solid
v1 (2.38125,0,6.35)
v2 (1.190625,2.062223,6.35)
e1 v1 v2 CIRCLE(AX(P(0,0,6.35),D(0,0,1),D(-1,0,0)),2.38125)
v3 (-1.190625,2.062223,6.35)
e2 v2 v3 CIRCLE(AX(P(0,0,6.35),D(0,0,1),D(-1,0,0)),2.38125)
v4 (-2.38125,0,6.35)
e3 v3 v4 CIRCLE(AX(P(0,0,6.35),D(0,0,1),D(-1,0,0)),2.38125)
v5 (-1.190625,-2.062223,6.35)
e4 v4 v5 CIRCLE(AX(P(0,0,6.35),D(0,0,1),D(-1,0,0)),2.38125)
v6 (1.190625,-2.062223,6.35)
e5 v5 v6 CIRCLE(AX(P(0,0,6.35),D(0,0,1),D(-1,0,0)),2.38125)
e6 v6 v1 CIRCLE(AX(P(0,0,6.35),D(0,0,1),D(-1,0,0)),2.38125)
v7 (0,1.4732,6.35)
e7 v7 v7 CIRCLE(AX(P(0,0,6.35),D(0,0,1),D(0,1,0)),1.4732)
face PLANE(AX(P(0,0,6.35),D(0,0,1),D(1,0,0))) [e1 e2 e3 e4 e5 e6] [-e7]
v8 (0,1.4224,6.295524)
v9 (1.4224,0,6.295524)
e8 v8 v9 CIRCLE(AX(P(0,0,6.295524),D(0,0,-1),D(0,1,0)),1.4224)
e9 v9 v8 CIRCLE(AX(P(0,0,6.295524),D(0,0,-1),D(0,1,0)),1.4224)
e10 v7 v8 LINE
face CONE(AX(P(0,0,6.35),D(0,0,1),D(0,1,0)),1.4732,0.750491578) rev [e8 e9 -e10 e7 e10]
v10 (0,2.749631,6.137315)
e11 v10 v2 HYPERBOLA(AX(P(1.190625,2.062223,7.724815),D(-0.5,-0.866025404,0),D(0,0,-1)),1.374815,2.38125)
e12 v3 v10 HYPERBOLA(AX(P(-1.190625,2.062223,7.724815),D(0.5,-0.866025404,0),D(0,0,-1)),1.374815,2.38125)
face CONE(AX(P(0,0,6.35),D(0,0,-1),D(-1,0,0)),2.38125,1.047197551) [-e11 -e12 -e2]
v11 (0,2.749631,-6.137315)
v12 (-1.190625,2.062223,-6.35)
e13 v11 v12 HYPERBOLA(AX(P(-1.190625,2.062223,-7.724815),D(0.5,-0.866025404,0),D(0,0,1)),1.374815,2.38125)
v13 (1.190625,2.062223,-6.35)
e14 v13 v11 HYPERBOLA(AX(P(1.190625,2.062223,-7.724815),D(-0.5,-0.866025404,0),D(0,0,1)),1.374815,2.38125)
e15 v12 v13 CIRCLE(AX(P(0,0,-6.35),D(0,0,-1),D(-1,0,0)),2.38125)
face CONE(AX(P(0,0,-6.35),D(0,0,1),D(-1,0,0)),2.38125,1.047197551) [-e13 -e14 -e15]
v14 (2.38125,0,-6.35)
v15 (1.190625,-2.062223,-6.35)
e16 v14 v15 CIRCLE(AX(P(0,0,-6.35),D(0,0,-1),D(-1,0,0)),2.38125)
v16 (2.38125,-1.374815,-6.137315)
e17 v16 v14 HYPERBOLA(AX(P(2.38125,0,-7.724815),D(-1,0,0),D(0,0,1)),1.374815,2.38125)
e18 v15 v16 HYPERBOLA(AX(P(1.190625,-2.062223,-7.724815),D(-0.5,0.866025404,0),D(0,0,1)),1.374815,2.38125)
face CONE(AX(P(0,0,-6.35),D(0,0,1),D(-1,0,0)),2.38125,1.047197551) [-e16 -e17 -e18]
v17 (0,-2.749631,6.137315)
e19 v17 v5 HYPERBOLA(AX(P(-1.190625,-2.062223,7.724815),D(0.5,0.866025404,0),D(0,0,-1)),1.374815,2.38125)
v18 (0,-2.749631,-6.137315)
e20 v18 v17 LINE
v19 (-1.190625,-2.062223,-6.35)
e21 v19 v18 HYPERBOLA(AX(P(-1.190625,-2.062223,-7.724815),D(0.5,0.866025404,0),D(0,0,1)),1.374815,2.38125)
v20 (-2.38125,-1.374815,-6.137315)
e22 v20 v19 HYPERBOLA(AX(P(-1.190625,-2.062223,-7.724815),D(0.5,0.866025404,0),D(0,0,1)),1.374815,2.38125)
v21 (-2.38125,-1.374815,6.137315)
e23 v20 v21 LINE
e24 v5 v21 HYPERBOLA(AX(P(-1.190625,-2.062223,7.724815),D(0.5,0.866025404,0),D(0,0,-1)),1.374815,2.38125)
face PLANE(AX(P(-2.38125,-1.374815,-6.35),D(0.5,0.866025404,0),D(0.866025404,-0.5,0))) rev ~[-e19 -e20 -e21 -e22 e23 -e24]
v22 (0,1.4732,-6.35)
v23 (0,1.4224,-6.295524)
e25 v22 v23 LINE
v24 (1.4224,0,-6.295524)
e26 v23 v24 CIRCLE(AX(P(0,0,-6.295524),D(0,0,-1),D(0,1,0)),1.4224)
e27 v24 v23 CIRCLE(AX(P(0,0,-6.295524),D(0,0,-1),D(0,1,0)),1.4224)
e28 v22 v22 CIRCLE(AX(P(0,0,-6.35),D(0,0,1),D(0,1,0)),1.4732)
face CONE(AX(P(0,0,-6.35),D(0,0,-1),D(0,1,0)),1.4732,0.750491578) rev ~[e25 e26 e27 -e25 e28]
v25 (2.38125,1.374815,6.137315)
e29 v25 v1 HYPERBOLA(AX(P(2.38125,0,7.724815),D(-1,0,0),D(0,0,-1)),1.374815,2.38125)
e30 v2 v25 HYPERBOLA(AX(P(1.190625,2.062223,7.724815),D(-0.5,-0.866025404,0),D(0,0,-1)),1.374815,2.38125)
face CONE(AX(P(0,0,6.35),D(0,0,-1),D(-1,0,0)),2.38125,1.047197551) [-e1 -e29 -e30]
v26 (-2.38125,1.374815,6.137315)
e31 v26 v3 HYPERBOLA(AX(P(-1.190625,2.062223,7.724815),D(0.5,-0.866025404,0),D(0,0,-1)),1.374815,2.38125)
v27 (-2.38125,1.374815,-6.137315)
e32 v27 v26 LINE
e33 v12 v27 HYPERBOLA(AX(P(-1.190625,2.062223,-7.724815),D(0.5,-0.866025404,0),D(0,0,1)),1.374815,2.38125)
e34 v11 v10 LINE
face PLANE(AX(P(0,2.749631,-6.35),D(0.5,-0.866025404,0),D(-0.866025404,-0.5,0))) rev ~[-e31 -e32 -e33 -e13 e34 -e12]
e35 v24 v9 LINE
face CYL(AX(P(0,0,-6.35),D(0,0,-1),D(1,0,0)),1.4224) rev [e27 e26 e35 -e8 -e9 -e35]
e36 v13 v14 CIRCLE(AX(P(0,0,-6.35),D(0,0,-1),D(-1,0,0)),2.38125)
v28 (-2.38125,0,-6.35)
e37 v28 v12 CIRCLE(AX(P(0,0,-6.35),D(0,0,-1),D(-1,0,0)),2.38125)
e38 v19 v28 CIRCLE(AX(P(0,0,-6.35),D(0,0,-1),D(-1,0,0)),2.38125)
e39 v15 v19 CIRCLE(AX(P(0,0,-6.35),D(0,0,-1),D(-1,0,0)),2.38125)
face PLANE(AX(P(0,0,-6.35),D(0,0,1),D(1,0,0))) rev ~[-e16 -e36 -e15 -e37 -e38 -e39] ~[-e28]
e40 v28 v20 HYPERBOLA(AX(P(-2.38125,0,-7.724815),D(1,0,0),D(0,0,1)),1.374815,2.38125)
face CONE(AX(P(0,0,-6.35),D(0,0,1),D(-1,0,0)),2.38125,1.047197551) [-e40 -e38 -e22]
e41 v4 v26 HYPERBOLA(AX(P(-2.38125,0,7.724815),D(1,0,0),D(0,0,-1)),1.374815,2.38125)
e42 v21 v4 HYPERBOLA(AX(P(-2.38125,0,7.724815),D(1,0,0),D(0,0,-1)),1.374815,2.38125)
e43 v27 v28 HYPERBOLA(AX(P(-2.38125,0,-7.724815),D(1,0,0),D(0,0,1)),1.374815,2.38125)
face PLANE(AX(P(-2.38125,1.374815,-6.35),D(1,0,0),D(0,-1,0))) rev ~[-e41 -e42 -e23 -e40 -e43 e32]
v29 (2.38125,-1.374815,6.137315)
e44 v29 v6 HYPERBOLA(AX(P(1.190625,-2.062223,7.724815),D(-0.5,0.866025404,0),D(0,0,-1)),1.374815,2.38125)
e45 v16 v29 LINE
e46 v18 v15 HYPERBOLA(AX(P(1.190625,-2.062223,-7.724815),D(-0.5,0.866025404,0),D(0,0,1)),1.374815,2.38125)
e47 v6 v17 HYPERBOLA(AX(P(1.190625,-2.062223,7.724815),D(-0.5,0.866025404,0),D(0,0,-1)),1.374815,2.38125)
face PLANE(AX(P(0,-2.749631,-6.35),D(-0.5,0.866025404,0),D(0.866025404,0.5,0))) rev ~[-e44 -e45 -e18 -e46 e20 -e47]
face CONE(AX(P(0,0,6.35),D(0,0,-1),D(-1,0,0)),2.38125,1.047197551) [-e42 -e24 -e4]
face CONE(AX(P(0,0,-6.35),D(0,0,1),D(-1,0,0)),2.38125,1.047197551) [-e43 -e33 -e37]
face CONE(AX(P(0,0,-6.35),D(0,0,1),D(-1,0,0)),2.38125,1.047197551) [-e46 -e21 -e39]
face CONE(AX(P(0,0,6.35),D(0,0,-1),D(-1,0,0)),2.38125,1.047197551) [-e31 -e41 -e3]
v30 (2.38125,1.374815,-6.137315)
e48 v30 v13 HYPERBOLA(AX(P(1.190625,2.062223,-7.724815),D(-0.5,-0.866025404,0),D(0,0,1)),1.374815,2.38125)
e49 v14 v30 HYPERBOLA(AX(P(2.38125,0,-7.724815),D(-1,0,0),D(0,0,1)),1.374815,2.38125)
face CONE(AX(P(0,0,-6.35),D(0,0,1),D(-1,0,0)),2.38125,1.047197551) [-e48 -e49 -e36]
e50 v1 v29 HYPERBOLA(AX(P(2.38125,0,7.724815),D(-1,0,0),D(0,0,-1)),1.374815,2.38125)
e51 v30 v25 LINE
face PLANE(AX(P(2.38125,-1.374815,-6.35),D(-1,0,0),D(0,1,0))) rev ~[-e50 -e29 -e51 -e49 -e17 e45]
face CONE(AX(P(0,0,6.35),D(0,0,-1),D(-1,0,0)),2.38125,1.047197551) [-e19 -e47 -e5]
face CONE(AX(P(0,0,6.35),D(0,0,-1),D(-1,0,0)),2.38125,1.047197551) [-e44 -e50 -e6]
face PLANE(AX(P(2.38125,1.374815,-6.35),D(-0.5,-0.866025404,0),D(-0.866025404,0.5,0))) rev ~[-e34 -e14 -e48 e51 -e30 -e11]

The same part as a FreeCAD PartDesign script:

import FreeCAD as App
import Part
import Sketcher

V = App.Vector
Q = App.Units.Quantity


def faces_at(feature, points):
    """Names of the faces that lie closest to the given points."""
    faces = feature.Shape.Faces
    near = lambda p: min(range(len(faces)), key=lambda i: faces[i].distToShape(Part.Vertex(*p))[0])
    return sorted({f"Face{near(p) + 1}" for p in points})

doc = App.newDocument("Part")
body = doc.addObject("PartDesign::Body", "Body")

sketch1 = body.newObject("Sketcher::SketchObject", "Sketch")
sketch1.AttachmentSupport = (doc.getObject("XY_Plane"), [""])
sketch1.MapMode = "FlatFace"
sketch1.addGeometry([
    Part.LineSegment(V(0, 2.7, 0), V(-2.4, 1.4, 0)),
    Part.LineSegment(V(-2.4, 1.4, 0), V(-2.4, -1.4, 0)),
    Part.LineSegment(V(-2.4, -1.4, 0), V(0, -2.7, 0)),
    Part.LineSegment(V(0, -2.7, 0), V(2.4, -1.4, 0)),
    Part.LineSegment(V(2.4, -1.4, 0), V(2.4, 1.4, 0)),
    Part.LineSegment(V(2.4, 1.4, 0), V(0, 2.7, 0)),
    Part.Circle(V(0, 0, 0), V(0, 0, 1), 1.4),
], False)
sketch1.addConstraint([
    Sketcher.Constraint("Coincident", 0, 2, 1, 1),
    Sketcher.Constraint("Coincident", 1, 2, 2, 1),
    Sketcher.Constraint("Coincident", 2, 2, 3, 1),
    Sketcher.Constraint("Coincident", 3, 2, 4, 1),
    Sketcher.Constraint("Coincident", 4, 2, 5, 1),
    Sketcher.Constraint("Coincident", 5, 2, 0, 1),
    Sketcher.Constraint("Vertical", 1),
    Sketcher.Constraint("Vertical", 4),
    Sketcher.Constraint("Coincident", 6, 3, -1, 1),
    Sketcher.Constraint("Symmetric", 0, 2, 3, 2, -1, 1),
    Sketcher.Constraint("Symmetric", 2, 2, 5, 2, -1, 1),
    Sketcher.Constraint("PointOnObject", 2, 2, -2),
    Sketcher.Constraint("Parallel", 2, 5),
    Sketcher.Constraint("Horizontal", 1, 2, 3, 2),
    Sketcher.Constraint("Diameter", 6, Q("0.112 in")),
    Sketcher.Constraint("Angle", 0, Q("-150 deg")),
    Sketcher.Constraint("DistanceX", 0, 2, -1, 1, Q("0.09375 in")),
    Sketcher.Constraint("DistanceY", 1, 2, 1, 1, Q("2.749631 mm")),
])
pad1 = body.newObject("PartDesign::Pad", "Pad")
pad1.Profile = sketch1
pad1.Type = "TwoLengths"
pad1.Length = Q("0.25 in")
pad1.Length2 = Q("0.25 in")

sketch2 = body.newObject("Sketcher::SketchObject", "Sketch001")
sketch2.AttachmentSupport = (doc.getObject("YZ_Plane"), [""])
sketch2.MapMode = "FlatFace"
sketch2.addGeometry([
    Part.LineSegment(V(0, -6.3, 0), V(1.5, -6.3, 0)),
    Part.LineSegment(V(1.5, -6.3, 0), V(0, -4.8, 0)),
    Part.LineSegment(V(0, -4.8, 0), V(0, -6.3, 0)),
], False)
sketch2.addConstraint([
    Sketcher.Constraint("Coincident", 0, 2, 1, 1),
    Sketcher.Constraint("Coincident", 1, 2, 2, 1),
    Sketcher.Constraint("Coincident", 2, 2, 0, 1),
    Sketcher.Constraint("Horizontal", 0),
    Sketcher.Constraint("Vertical", 2),
    Sketcher.Constraint("PointOnObject", 1, 2, -2),
    Sketcher.Constraint("Angle", 1, Q("133 deg")),
    Sketcher.Constraint("DistanceX", 0, 1, 0, 2, Q("0.058 in")),
    Sketcher.Constraint("DistanceY", 0, 2, -1, 1, Q("0.25 in")),
])
groove = body.newObject("PartDesign::Groove", "Groove")
groove.Profile = sketch2
groove.ReferenceAxis = (sketch2, ["V_Axis"])
groove.Angle = 360
body2 = doc.addObject("PartDesign::Body", "Body001")

sketch3 = body2.newObject("Sketcher::SketchObject", "Sketch002")
sketch3.AttachmentSupport = (doc.getObject("XY_Plane001"), [""])
sketch3.MapMode = "FlatFace"
sketch3.AttachmentOffset = App.Placement(V(0, 0, -0.25 * 25.4), App.Rotation())
sketch3.addGeometry([
    Part.LineSegment(V(29.5, 29.8, 0), V(29.5, -29.8, 0)),
    Part.LineSegment(V(29.5, -29.8, 0), V(-29.5, -29.8, 0)),
    Part.LineSegment(V(-29.5, -29.8, 0), V(-29.5, 29.8, 0)),
    Part.LineSegment(V(-29.5, 29.8, 0), V(29.5, 29.8, 0)),
    Part.Circle(V(0, 0, 0), V(0, 0, 1), 2.4),
], False)
sketch3.addConstraint([
    Sketcher.Constraint("Coincident", 0, 2, 1, 1),
    Sketcher.Constraint("Coincident", 1, 2, 2, 1),
    Sketcher.Constraint("Coincident", 2, 2, 3, 1),
    Sketcher.Constraint("Coincident", 3, 2, 0, 1),
    Sketcher.Constraint("Vertical", 0),
    Sketcher.Constraint("Horizontal", 1),
    Sketcher.Constraint("Vertical", 2),
    Sketcher.Constraint("Horizontal", 3),
    Sketcher.Constraint("Coincident", 4, 3, -1, 1),
    Sketcher.Constraint("Symmetric", 0, 2, 2, 2, -1, 1),
    Sketcher.Constraint("Diameter", 4, Q("0.1875 in")),
    Sketcher.Constraint("DistanceX", 1, 2, 1, 1, Q("58.916 mm")),
    Sketcher.Constraint("DistanceY", 0, 2, 0, 1, Q("59.654 mm")),
])
pad2 = body2.newObject("PartDesign::Pad", "Pad001")
pad2.Profile = sketch3
pad2.Length = 14.210633
doc.recompute()

datumplane = body2.newObject("PartDesign::Plane", "DatumPlane")
datumplane.AttachmentSupport = (doc.getObject("XY_Plane001"), [""])
datumplane.MapMode = "FlatFace"
datumplane.AttachmentOffset = App.Placement(V(0, 0, -0.25 * 25.4), App.Rotation())
draft = body2.newObject("PartDesign::Draft", "Draft")
draft.Base = (pad2, faces_at(pad2, [
    (0, -29.827, 0.755),
    (-29.458, 0, 0.755),
    (0, 29.827, 0.755),
    (29.458, 0, 0.755),
    (2.381, 0, 0.755),
]))
draft.NeutralPlane = (datumplane, [""])
draft.Angle = 60
draft.Reversed = False
doc.recompute()

boolean = body.newObject("PartDesign::Boolean", "Boolean")
boolean.Type = "Cut"
boolean.addObjects([body2])
doc.recompute()

mirrored = body.newObject("PartDesign::Mirrored", "Mirrored")
mirrored.Originals = [groove]
mirrored.MirrorPlane = (doc.getObject("XY_Plane"), [""])
body.Tip = mirrored
body3 = doc.addObject("PartDesign::Body", "Body002")

sketch4 = body3.newObject("Sketcher::SketchObject", "Sketch003")
sketch4.AttachmentSupport = (doc.getObject("XY_Plane002"), [""])
sketch4.MapMode = "FlatFace"
sketch4.AttachmentOffset = App.Placement(V(0, 0, 0.25 * 25.4), App.Rotation())
sketch4.addGeometry([
    Part.LineSegment(V(29.5, -29.8, 0), V(29.5, 29.8, 0)),
    Part.LineSegment(V(29.5, 29.8, 0), V(-29.5, 29.8, 0)),
    Part.LineSegment(V(-29.5, 29.8, 0), V(-29.5, -29.8, 0)),
    Part.LineSegment(V(-29.5, -29.8, 0), V(29.5, -29.8, 0)),
    Part.Circle(V(0, 0, 0), V(0, 0, 1), 2.4),
], False)
sketch4.addConstraint([
    Sketcher.Constraint("Coincident", 0, 2, 1, 1),
    Sketcher.Constraint("Coincident", 1, 2, 2, 1),
    Sketcher.Constraint("Coincident", 2, 2, 3, 1),
    Sketcher.Constraint("Coincident", 3, 2, 0, 1),
    Sketcher.Constraint("Vertical", 0),
    Sketcher.Constraint("Horizontal", 1),
    Sketcher.Constraint("Vertical", 2),
    Sketcher.Constraint("Horizontal", 3),
    Sketcher.Constraint("Coincident", 4, 3, -1, 1),
    Sketcher.Constraint("Symmetric", 0, 2, 2, 2, -1, 1),
    Sketcher.Constraint("Diameter", 4, Q("0.1875 in")),
    Sketcher.Constraint("DistanceX", 1, 2, 1, 1, Q("58.916 mm")),
    Sketcher.Constraint("DistanceY", 0, 1, 0, 2, Q("59.654 mm")),
])
pad3 = body3.newObject("PartDesign::Pad", "Pad002")
pad3.Profile = sketch4
pad3.Length = 14.210633
pad3.Reversed = True
doc.recompute()

datumplane2 = body3.newObject("PartDesign::Plane", "DatumPlane001")
datumplane2.AttachmentSupport = (doc.getObject("XY_Plane002"), [""])
datumplane2.MapMode = "FlatFace"
datumplane2.AttachmentOffset = App.Placement(V(0, 0, 0.25 * 25.4), App.Rotation())
draft2 = body3.newObject("PartDesign::Draft", "Draft001")
draft2.Base = (pad3, faces_at(pad3, [
    (0, -29.827, -0.755),
    (-29.458, 0, -0.755),
    (0, 29.827, -0.755),
    (29.458, 0, -0.755),
    (2.381, 0, -0.755),
]))
draft2.NeutralPlane = (datumplane2, [""])
draft2.Angle = 60
draft2.Reversed = True
doc.recompute()

boolean2 = body.newObject("PartDesign::Boolean", "Boolean001")
boolean2.Type = "Cut"
boolean2.addObjects([body3])

doc.recompute()
